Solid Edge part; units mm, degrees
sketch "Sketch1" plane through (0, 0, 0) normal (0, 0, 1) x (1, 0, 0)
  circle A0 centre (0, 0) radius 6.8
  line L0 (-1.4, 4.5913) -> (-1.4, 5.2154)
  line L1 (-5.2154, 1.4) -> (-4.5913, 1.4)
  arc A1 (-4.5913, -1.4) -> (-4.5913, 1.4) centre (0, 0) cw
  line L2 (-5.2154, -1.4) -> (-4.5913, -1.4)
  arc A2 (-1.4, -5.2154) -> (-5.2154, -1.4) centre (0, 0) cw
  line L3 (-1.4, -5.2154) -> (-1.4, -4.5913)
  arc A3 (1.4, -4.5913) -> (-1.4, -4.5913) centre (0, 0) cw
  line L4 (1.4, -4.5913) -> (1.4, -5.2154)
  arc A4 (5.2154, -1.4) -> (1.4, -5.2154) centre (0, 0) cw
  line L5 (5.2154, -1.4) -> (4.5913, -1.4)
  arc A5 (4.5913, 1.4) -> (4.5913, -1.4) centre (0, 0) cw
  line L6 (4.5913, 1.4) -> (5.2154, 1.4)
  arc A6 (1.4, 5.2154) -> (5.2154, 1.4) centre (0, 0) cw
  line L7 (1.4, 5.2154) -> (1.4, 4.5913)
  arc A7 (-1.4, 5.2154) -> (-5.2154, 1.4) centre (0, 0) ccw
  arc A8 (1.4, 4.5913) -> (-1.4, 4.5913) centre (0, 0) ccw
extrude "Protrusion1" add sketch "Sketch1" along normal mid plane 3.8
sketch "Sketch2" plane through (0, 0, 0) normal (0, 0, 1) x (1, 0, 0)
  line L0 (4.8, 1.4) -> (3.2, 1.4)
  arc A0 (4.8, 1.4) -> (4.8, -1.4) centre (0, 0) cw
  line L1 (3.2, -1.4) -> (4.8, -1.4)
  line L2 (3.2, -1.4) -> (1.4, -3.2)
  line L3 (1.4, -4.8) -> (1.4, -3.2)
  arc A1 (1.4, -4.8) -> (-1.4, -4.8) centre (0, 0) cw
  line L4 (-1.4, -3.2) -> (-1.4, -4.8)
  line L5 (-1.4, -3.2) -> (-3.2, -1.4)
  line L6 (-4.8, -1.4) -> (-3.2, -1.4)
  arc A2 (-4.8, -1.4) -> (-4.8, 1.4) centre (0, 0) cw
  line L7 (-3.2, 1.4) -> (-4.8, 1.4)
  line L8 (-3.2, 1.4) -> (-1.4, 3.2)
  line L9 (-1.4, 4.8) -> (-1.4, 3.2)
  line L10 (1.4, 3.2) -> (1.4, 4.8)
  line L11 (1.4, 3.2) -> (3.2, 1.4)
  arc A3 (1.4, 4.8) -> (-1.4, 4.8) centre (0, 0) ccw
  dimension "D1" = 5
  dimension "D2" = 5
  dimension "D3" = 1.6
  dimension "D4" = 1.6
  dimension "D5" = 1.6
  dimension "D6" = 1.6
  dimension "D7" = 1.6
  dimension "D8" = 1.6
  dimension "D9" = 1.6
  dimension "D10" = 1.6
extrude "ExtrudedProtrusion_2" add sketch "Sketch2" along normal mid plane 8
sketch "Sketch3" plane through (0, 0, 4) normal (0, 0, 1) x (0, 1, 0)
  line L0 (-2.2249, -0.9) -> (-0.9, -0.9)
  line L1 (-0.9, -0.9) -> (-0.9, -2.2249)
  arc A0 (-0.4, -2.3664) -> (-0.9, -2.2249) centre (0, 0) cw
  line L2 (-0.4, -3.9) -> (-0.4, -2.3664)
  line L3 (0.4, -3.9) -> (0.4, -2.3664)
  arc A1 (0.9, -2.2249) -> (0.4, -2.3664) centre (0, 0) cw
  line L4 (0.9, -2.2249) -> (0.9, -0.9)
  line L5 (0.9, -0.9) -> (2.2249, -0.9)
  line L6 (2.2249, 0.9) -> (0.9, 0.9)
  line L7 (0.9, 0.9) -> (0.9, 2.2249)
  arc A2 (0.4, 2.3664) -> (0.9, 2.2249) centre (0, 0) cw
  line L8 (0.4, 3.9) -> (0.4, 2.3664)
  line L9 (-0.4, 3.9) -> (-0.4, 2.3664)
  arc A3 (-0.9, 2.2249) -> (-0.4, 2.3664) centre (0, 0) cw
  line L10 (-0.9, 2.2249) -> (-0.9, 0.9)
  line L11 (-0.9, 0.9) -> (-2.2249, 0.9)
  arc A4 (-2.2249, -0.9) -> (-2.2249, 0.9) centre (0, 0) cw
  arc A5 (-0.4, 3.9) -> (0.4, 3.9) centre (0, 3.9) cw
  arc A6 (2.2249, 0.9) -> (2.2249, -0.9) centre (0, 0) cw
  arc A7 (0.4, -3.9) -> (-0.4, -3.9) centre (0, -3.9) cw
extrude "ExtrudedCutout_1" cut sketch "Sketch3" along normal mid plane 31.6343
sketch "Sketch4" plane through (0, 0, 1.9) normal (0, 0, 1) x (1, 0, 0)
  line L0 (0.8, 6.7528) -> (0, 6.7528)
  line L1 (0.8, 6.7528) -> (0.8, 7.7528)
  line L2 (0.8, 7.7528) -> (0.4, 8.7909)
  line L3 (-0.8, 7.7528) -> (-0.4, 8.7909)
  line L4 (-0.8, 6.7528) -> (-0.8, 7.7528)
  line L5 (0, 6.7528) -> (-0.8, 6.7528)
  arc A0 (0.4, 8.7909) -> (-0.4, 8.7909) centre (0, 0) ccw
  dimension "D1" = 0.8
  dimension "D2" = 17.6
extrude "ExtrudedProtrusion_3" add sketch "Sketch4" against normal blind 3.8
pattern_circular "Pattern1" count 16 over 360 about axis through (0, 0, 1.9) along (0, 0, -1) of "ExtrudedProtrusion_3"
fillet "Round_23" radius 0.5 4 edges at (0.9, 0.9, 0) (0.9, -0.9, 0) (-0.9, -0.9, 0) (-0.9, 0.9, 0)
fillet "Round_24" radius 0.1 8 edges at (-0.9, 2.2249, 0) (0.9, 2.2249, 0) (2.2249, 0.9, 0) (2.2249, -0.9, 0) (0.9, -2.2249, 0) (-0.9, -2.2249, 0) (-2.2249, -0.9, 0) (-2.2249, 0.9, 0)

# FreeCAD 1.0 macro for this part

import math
import FreeCAD as App
import Part
import Sketcher

V = App.Vector
Q = App.Units.Quantity


def edges_at(feature, points):
    """Names of the edges that pass closest to the given points."""
    edges = feature.Shape.Edges
    near = lambda p: min(range(len(edges)), key=lambda i: edges[i].distToShape(Part.Vertex(*p))[0])
    return sorted({f"Edge{near(p) + 1}" for p in points})

doc = App.newDocument("Part")
body = doc.addObject("PartDesign::Body", "Body")

# Sketch on XY plane
sketch1 = body.newObject("Sketcher::SketchObject", "Sketch")
sketch1.AttachmentSupport = (doc.getObject("XY_Plane"), [""])
sketch1.MapMode = "FlatFace"
sketch1.addGeometry(Part.Circle(V(0, 0, 0), V(0, 0, 1), 6.8), False)
sketch1.addGeometry(Part.LineSegment(V(-1.4, 5.2, 0), V(-1.4, 4.6, 0)), False)
sketch1.addGeometry(Part.ArcOfCircle(Part.Circle(V(0, 0, 0), V(0, 0, 1), 4.8), math.radians(73), math.radians(107)), False)
sketch1.addGeometry(Part.LineSegment(V(1.4, 4.6, 0), V(1.4, 5.2, 0)), False)
sketch1.addGeometry(Part.ArcOfCircle(Part.Circle(V(0, 0, 0), V(0, 0, 1), 5.4), math.radians(15), math.radians(75)), False)
sketch1.addGeometry(Part.LineSegment(V(5.2, 1.4, 0), V(4.6, 1.4, 0)), False)
sketch1.addGeometry(Part.ArcOfCircle(Part.Circle(V(0, 0, 0), V(0, 0, 1), 4.8), math.radians(-17), math.radians(17)), False)
sketch1.addGeometry(Part.LineSegment(V(4.6, -1.4, 0), V(5.2, -1.4, 0)), False)
sketch1.addGeometry(Part.ArcOfCircle(Part.Circle(V(0, 0, 0), V(0, 0, 1), 5.4), math.radians(-75), math.radians(-15)), False)
sketch1.addGeometry(Part.LineSegment(V(1.4, -5.2, 0), V(1.4, -4.6, 0)), False)
sketch1.addGeometry(Part.ArcOfCircle(Part.Circle(V(0, 0, 0), V(0, 0, 1), 4.8), math.radians(-107), math.radians(-73)), False)
sketch1.addGeometry(Part.LineSegment(V(-1.4, -4.6, 0), V(-1.4, -5.2, 0)), False)
sketch1.addGeometry(Part.ArcOfCircle(Part.Circle(V(0, 0, 0), V(0, 0, 1), 5.4), math.radians(-165), math.radians(-105)), False)
sketch1.addGeometry(Part.LineSegment(V(-5.2, -1.4, 0), V(-4.6, -1.4, 0)), False)
sketch1.addGeometry(Part.ArcOfCircle(Part.Circle(V(0, 0, 0), V(0, 0, 1), 4.8), math.radians(163), math.radians(197)), False)
sketch1.addGeometry(Part.LineSegment(V(-4.6, 1.4, 0), V(-5.2, 1.4, 0)), False)
sketch1.addGeometry(Part.ArcOfCircle(Part.Circle(V(0, 0, 0), V(0, 0, 1), 5.4), math.radians(105), math.radians(165)), False)
sketch1.addConstraint(Sketcher.Constraint("Coincident", 1, 2, 2, 2))
sketch1.addConstraint(Sketcher.Constraint("Coincident", 2, 1, 3, 1))
sketch1.addConstraint(Sketcher.Constraint("Coincident", 3, 2, 4, 2))
sketch1.addConstraint(Sketcher.Constraint("Coincident", 4, 1, 5, 1))
sketch1.addConstraint(Sketcher.Constraint("Coincident", 5, 2, 6, 2))
sketch1.addConstraint(Sketcher.Constraint("Coincident", 6, 1, 7, 1))
sketch1.addConstraint(Sketcher.Constraint("Coincident", 7, 2, 8, 2))
sketch1.addConstraint(Sketcher.Constraint("Coincident", 8, 1, 9, 1))
sketch1.addConstraint(Sketcher.Constraint("Coincident", 9, 2, 10, 2))
sketch1.addConstraint(Sketcher.Constraint("Coincident", 10, 1, 11, 1))
sketch1.addConstraint(Sketcher.Constraint("Coincident", 11, 2, 12, 2))
sketch1.addConstraint(Sketcher.Constraint("Coincident", 12, 1, 13, 1))
sketch1.addConstraint(Sketcher.Constraint("Coincident", 13, 2, 14, 2))
sketch1.addConstraint(Sketcher.Constraint("Coincident", 14, 1, 15, 1))
sketch1.addConstraint(Sketcher.Constraint("Coincident", 15, 2, 16, 2))
sketch1.addConstraint(Sketcher.Constraint("Coincident", 16, 1, 1, 1))
sketch1.addConstraint(Sketcher.Constraint("Vertical", 1))
sketch1.addConstraint(Sketcher.Constraint("Vertical", 3))
sketch1.addConstraint(Sketcher.Constraint("Horizontal", 5))
sketch1.addConstraint(Sketcher.Constraint("Horizontal", 7))
sketch1.addConstraint(Sketcher.Constraint("Vertical", 9))
sketch1.addConstraint(Sketcher.Constraint("Vertical", 11))
sketch1.addConstraint(Sketcher.Constraint("Horizontal", 13))
sketch1.addConstraint(Sketcher.Constraint("Horizontal", 15))
sketch1.addConstraint(Sketcher.Constraint("Coincident", 0, 3, -1, 1))
sketch1.addConstraint(Sketcher.Constraint("Coincident", 2, 3, -1, 1))
sketch1.addConstraint(Sketcher.Constraint("Coincident", 4, 3, -1, 1))
sketch1.addConstraint(Sketcher.Constraint("Coincident", 6, 3, -1, 1))
sketch1.addConstraint(Sketcher.Constraint("Coincident", 8, 3, -1, 1))
sketch1.addConstraint(Sketcher.Constraint("Coincident", 10, 3, -1, 1))
sketch1.addConstraint(Sketcher.Constraint("Coincident", 12, 3, -1, 1))
sketch1.addConstraint(Sketcher.Constraint("Coincident", 14, 3, -1, 1))
sketch1.addConstraint(Sketcher.Constraint("Coincident", 16, 3, -1, 1))
sketch1.addConstraint(Sketcher.Constraint("Equal", 2, 6))
sketch1.addConstraint(Sketcher.Constraint("Equal", 4, 8))
sketch1.addConstraint(Sketcher.Constraint("Equal", 6, 10))
sketch1.addConstraint(Sketcher.Constraint("Equal", 8, 12))
sketch1.addConstraint(Sketcher.Constraint("Equal", 10, 14))
sketch1.addConstraint(Sketcher.Constraint("Equal", 12, 16))
sketch1.addConstraint(Sketcher.Constraint("Horizontal", 1, 2, 2, 1))
sketch1.addConstraint(Sketcher.Constraint("Horizontal", 9, 2, 10, 1))
sketch1.addConstraint(Sketcher.Constraint("Horizontal", 7, 2, 12, 1))
sketch1.addConstraint(Sketcher.Constraint("Horizontal", 5, 2, 14, 1))
sketch1.addConstraint(Sketcher.Constraint("Vertical", 5, 2, 6, 1))
sketch1.addConstraint(Sketcher.Constraint("Vertical", 3, 2, 8, 1))
sketch1.addConstraint(Sketcher.Constraint("Equal", 15, 1))
sketch1.addConstraint(Sketcher.Constraint("Diameter", 0, Q("13.6 mm")))
sketch1.addConstraint(Sketcher.Constraint("Radius", 2, Q("4.8 mm")))
sketch1.addConstraint(Sketcher.Constraint("Radius", 4, Q("5.4 mm")))
sketch1.addConstraint(Sketcher.Constraint("DistanceX", 1, 2, -1, 1, Q("1.4 mm")))
pad1 = body.newObject("PartDesign::Pad", "Pad")
pad1.Profile = sketch1
pad1.Length = 3.8
pad1.Midplane = True

# Sketch on XY plane
sketch2 = body.newObject("Sketcher::SketchObject", "Sketch001")
sketch2.AttachmentSupport = (doc.getObject("XY_Plane"), [""])
sketch2.MapMode = "FlatFace"
sketch2.addGeometry(Part.ArcOfCircle(Part.Circle(V(0, 0, 0), V(0, 0, 1), 5), math.radians(-16), math.radians(16)), False)
sketch2.addGeometry(Part.LineSegment(V(4.8, 1.4, 0), V(3.2, 1.4, 0)), False)
sketch2.addGeometry(Part.LineSegment(V(3.2, 1.4, 0), V(1.4, 3.2, 0)), False)
sketch2.addGeometry(Part.LineSegment(V(1.4, 3.2, 0), V(1.4, 4.8, 0)), False)
sketch2.addGeometry(Part.ArcOfCircle(Part.Circle(V(0, 0, 0), V(0, 0, 1), 5), math.radians(74), math.radians(106)), False)
sketch2.addGeometry(Part.LineSegment(V(-1.4, 4.8, 0), V(-1.4, 3.2, 0)), False)
sketch2.addGeometry(Part.LineSegment(V(-1.4, 3.2, 0), V(-3.2, 1.4, 0)), False)
sketch2.addGeometry(Part.LineSegment(V(-3.2, 1.4, 0), V(-4.8, 1.4, 0)), False)
sketch2.addGeometry(Part.ArcOfCircle(Part.Circle(V(0, 0, 0), V(0, 0, 1), 5), math.radians(164), math.radians(196)), False)
sketch2.addGeometry(Part.LineSegment(V(-4.8, -1.4, 0), V(-3.2, -1.4, 0)), False)
sketch2.addGeometry(Part.LineSegment(V(-3.2, -1.4, 0), V(-1.4, -3.2, 0)), False)
sketch2.addGeometry(Part.LineSegment(V(-1.4, -3.2, 0), V(-1.4, -4.8, 0)), False)
sketch2.addGeometry(Part.ArcOfCircle(Part.Circle(V(0, 0, 0), V(0, 0, 1), 5), math.radians(-106), math.radians(-74)), False)
sketch2.addGeometry(Part.LineSegment(V(1.4, -4.8, 0), V(1.4, -3.2, 0)), False)
sketch2.addGeometry(Part.LineSegment(V(1.4, -3.2, 0), V(3.2, -1.4, 0)), False)
sketch2.addGeometry(Part.LineSegment(V(3.2, -1.4, 0), V(4.8, -1.4, 0)), False)
sketch2.addConstraint(Sketcher.Constraint("Coincident", 0, 2, 1, 1))
sketch2.addConstraint(Sketcher.Constraint("Coincident", 1, 2, 2, 1))
sketch2.addConstraint(Sketcher.Constraint("Coincident", 2, 2, 3, 1))
sketch2.addConstraint(Sketcher.Constraint("Coincident", 3, 2, 4, 1))
sketch2.addConstraint(Sketcher.Constraint("Coincident", 4, 2, 5, 1))
sketch2.addConstraint(Sketcher.Constraint("Coincident", 5, 2, 6, 1))
sketch2.addConstraint(Sketcher.Constraint("Coincident", 6, 2, 7, 1))
sketch2.addConstraint(Sketcher.Constraint("Coincident", 7, 2, 8, 1))
sketch2.addConstraint(Sketcher.Constraint("Coincident", 8, 2, 9, 1))
sketch2.addConstraint(Sketcher.Constraint("Coincident", 9, 2, 10, 1))
sketch2.addConstraint(Sketcher.Constraint("Coincident", 10, 2, 11, 1))
sketch2.addConstraint(Sketcher.Constraint("Coincident", 11, 2, 12, 1))
sketch2.addConstraint(Sketcher.Constraint("Coincident", 12, 2, 13, 1))
sketch2.addConstraint(Sketcher.Constraint("Coincident", 13, 2, 14, 1))
sketch2.addConstraint(Sketcher.Constraint("Coincident", 14, 2, 15, 1))
sketch2.addConstraint(Sketcher.Constraint("Coincident", 15, 2, 0, 1))
sketch2.addConstraint(Sketcher.Constraint("Horizontal", 1))
sketch2.addConstraint(Sketcher.Constraint("Vertical", 3))
sketch2.addConstraint(Sketcher.Constraint("Vertical", 5))
sketch2.addConstraint(Sketcher.Constraint("Horizontal", 7))
sketch2.addConstraint(Sketcher.Constraint("Horizontal", 9))
sketch2.addConstraint(Sketcher.Constraint("Vertical", 11))
sketch2.addConstraint(Sketcher.Constraint("Vertical", 13))
sketch2.addConstraint(Sketcher.Constraint("Horizontal", 15))
sketch2.addConstraint(Sketcher.Constraint("Coincident", 0, 3, -1, 1))
sketch2.addConstraint(Sketcher.Constraint("Coincident", 4, 3, -1, 1))
sketch2.addConstraint(Sketcher.Constraint("Coincident", 8, 3, -1, 1))
sketch2.addConstraint(Sketcher.Constraint("Coincident", 12, 3, -1, 1))
sketch2.addConstraint(Sketcher.Constraint("Equal", 0, 4))
sketch2.addConstraint(Sketcher.Constraint("Equal", 4, 8))
sketch2.addConstraint(Sketcher.Constraint("Equal", 8, 12))
sketch2.addConstraint(Sketcher.Constraint("Symmetric", 1, 2, 9, 2, -1, 1))
sketch2.addConstraint(Sketcher.Constraint("Symmetric", 2, 2, 10, 2, -1, 1))
sketch2.addConstraint(Sketcher.Constraint("Symmetric", 5, 2, 13, 2, -1, 1))
sketch2.addConstraint(Sketcher.Constraint("Symmetric", 6, 2, 14, 2, -1, 1))
sketch2.addConstraint(Sketcher.Constraint("Symmetric", 2, 2, 5, 2, -2))
sketch2.addConstraint(Sketcher.Constraint("Symmetric", 1, 2, 6, 2, -2))
sketch2.addConstraint(Sketcher.Constraint("Perpendicular", 2, 6))
sketch2.addConstraint(Sketcher.Constraint("Equal", 15, 3))
sketch2.addConstraint(Sketcher.Constraint("Radius", 0, Q("5 mm")))
sketch2.addConstraint(Sketcher.Constraint("DistanceX", -1, 1, 0, 2, Q("4.8 mm")))
sketch2.addConstraint(Sketcher.Constraint("DistanceX", -1, 1, 1, 2, Q("3.2 mm")))
pad2 = body.newObject("PartDesign::Pad", "Pad001")
pad2.Profile = sketch2
pad2.Length = 8
pad2.Midplane = True

# Sketch on XY plane
sketch3 = body.newObject("Sketcher::SketchObject", "Sketch002")
sketch3.AttachmentSupport = (doc.getObject("XY_Plane"), [""])
sketch3.MapMode = "FlatFace"
sketch3.AttachmentOffset = App.Placement(V(0, 0, 4), App.Rotation())
sketch3.addGeometry(Part.ArcOfCircle(Part.Circle(V(0, 0, 0), V(0, 0, 1), 2.4), math.radians(-112), math.radians(-68)), False)
sketch3.addGeometry(Part.LineSegment(V(0.9, -2.22, 0), V(0.9, -0.9, 0)), False)
sketch3.addGeometry(Part.LineSegment(V(0.9, -0.9, 0), V(2.22, -0.9, 0)), False)
sketch3.addGeometry(Part.ArcOfCircle(Part.Circle(V(-0.01, 0, 0), V(0, 0, 1), 2.41), math.radians(-22), math.radians(-9.6)), False)
sketch3.addGeometry(Part.LineSegment(V(2.37, -0.4, 0), V(3.9, -0.4, 0)), False)
sketch3.addGeometry(Part.ArcOfCircle(Part.Circle(V(3.9, 0, 0), V(0, 0, 1), 0.4), math.radians(-90), math.radians(90)), False)
sketch3.addGeometry(Part.LineSegment(V(3.9, 0.4, 0), V(2.37, 0.4, 0)), False)
sketch3.addGeometry(Part.ArcOfCircle(Part.Circle(V(0.01, 0, 0), V(0, 0, 1), 2.39), math.radians(9.57), math.radians(22.03)), False)
sketch3.addGeometry(Part.LineSegment(V(2.22, 0.9, 0), V(0.9, 0.9, 0)), False)
sketch3.addGeometry(Part.LineSegment(V(0.9, 0.9, 0), V(0.9, 2.22, 0)), False)
sketch3.addGeometry(Part.ArcOfCircle(Part.Circle(V(0, 0, 0), V(0, 0, 1), 2.4), math.radians(68), math.radians(112)), False)
sketch3.addGeometry(Part.LineSegment(V(-0.9, 2.22, 0), V(-0.9, 0.9, 0)), False)
sketch3.addGeometry(Part.LineSegment(V(-0.9, 0.9, 0), V(-2.22, 0.9, 0)), False)
sketch3.addGeometry(Part.ArcOfCircle(Part.Circle(V(0.01, 0, 0), V(0, 0, 1), 2.41), math.radians(158), math.radians(170.4)), False)
sketch3.addGeometry(Part.LineSegment(V(-2.37, 0.4, 0), V(-3.9, 0.4, 0)), False)
sketch3.addGeometry(Part.ArcOfCircle(Part.Circle(V(-3.9, 0, 0), V(0, 0, 1), 0.4), math.radians(90), math.radians(270)), False)
sketch3.addGeometry(Part.LineSegment(V(-3.9, -0.4, 0), V(-2.37, -0.4, 0)), False)
sketch3.addGeometry(Part.ArcOfCircle(Part.Circle(V(-0.01, 0, 0), V(0, 0, 1), 2.39), math.radians(-170.43), math.radians(-157.97)), False)
sketch3.addGeometry(Part.LineSegment(V(-2.22, -0.9, 0), V(-0.9, -0.9, 0)), False)
sketch3.addGeometry(Part.LineSegment(V(-0.9, -0.9, 0), V(-0.9, -2.22, 0)), False)
sketch3.addConstraint(Sketcher.Constraint("Coincident", 0, 2, 1, 1))
sketch3.addConstraint(Sketcher.Constraint("Coincident", 1, 2, 2, 1))
sketch3.addConstraint(Sketcher.Constraint("Coincident", 2, 2, 3, 1))
sketch3.addConstraint(Sketcher.Constraint("Coincident", 3, 2, 4, 1))
sketch3.addConstraint(Sketcher.Constraint("Tangent", 4, 2, 5, 1))
sketch3.addConstraint(Sketcher.Constraint("Tangent", 5, 2, 6, 1))
sketch3.addConstraint(Sketcher.Constraint("Coincident", 6, 2, 7, 1))
sketch3.addConstraint(Sketcher.Constraint("Coincident", 7, 2, 8, 1))
sketch3.addConstraint(Sketcher.Constraint("Coincident", 8, 2, 9, 1))
sketch3.addConstraint(Sketcher.Constraint("Coincident", 9, 2, 10, 1))
sketch3.addConstraint(Sketcher.Constraint("Coincident", 10, 2, 11, 1))
sketch3.addConstraint(Sketcher.Constraint("Coincident", 11, 2, 12, 1))
sketch3.addConstraint(Sketcher.Constraint("Coincident", 12, 2, 13, 1))
sketch3.addConstraint(Sketcher.Constraint("Coincident", 13, 2, 14, 1))
sketch3.addConstraint(Sketcher.Constraint("Tangent", 14, 2, 15, 1))
sketch3.addConstraint(Sketcher.Constraint("Tangent", 15, 2, 16, 1))
sketch3.addConstraint(Sketcher.Constraint("Coincident", 16, 2, 17, 1))
sketch3.addConstraint(Sketcher.Constraint("Coincident", 17, 2, 18, 1))
sketch3.addConstraint(Sketcher.Constraint("Coincident", 18, 2, 19, 1))
sketch3.addConstraint(Sketcher.Constraint("Coincident", 19, 2, 0, 1))
sketch3.addConstraint(Sketcher.Constraint("Vertical", 1))
sketch3.addConstraint(Sketcher.Constraint("Horizontal", 2))
sketch3.addConstraint(Sketcher.Constraint("Horizontal", 4))
sketch3.addConstraint(Sketcher.Constraint("Horizontal", 6))
sketch3.addConstraint(Sketcher.Constraint("Horizontal", 8))
sketch3.addConstraint(Sketcher.Constraint("Vertical", 9))
sketch3.addConstraint(Sketcher.Constraint("Vertical", 11))
sketch3.addConstraint(Sketcher.Constraint("Horizontal", 12))
sketch3.addConstraint(Sketcher.Constraint("Horizontal", 14))
sketch3.addConstraint(Sketcher.Constraint("Horizontal", 16))
sketch3.addConstraint(Sketcher.Constraint("Horizontal", 18))
sketch3.addConstraint(Sketcher.Constraint("Vertical", 19))
sketch3.addConstraint(Sketcher.Constraint("Coincident", 0, 3, -1, 1))
sketch3.addConstraint(Sketcher.Constraint("Coincident", 10, 3, -1, 1))
sketch3.addConstraint(Sketcher.Constraint("Equal", 0, 10))
sketch3.addConstraint(Sketcher.Constraint("Equal", 3, 13))
sketch3.addConstraint(Sketcher.Constraint("Equal", 5, 15))
sketch3.addConstraint(Sketcher.Constraint("Equal", 7, 17))
sketch3.addConstraint(Sketcher.Constraint("Symmetric", 3, 3, 13, 3, -1, 1))
sketch3.addConstraint(Sketcher.Constraint("Symmetric", 5, 3, 15, 3, -1, 1))
sketch3.addConstraint(Sketcher.Constraint("Symmetric", 7, 3, 17, 3, -1, 1))
sketch3.addConstraint(Sketcher.Constraint("Symmetric", 1, 2, 11, 2, -1, 1))
sketch3.addConstraint(Sketcher.Constraint("Symmetric", 8, 2, 18, 2, -1, 1))
sketch3.addConstraint(Sketcher.Constraint("Symmetric", 8, 2, 11, 2, -2))
sketch3.addConstraint(Sketcher.Constraint("Symmetric", 6, 2, 13, 2, -2))
sketch3.addConstraint(Sketcher.Constraint("Vertical", 2, 2, 7, 2))
sketch3.addConstraint(Sketcher.Constraint("Equal", 18, 1))
sketch3.addConstraint(Sketcher.Constraint("Radius", 0, Q("2.4 mm")))
sketch3.addConstraint(Sketcher.Constraint("Radius", 5, Q("0.4 mm")))
sketch3.addConstraint(Sketcher.Constraint("DistanceX", 1, 2, 4, 2, Q("3 mm")))
sketch3.addConstraint(Sketcher.Constraint("DistanceX", -1, 1, 5, 3, Q("3.9 mm")))
sketch3.addConstraint(Sketcher.Constraint("DistanceY", 1, 2, -1, 1, Q("0.9 mm")))
sketch3.addConstraint(Sketcher.Constraint("Radius", 3, Q("2.4059 mm")))
sketch3.addConstraint(Sketcher.Constraint("Radius", 7, Q("2.3942 mm")))
sketch3.addConstraint(Sketcher.Constraint("DistanceX", 4, 1, 4, 2, Q("1.5336 mm")))
pocket1 = body.newObject("PartDesign::Pocket", "Pocket")
pocket1.Profile = sketch3
pocket1.Length = 31.6343
pocket1.Midplane = True

# Sketch on XY plane
sketch4 = body.newObject("Sketcher::SketchObject", "Sketch003")
sketch4.AttachmentSupport = (doc.getObject("XY_Plane"), [""])
sketch4.MapMode = "FlatFace"
sketch4.AttachmentOffset = App.Placement(V(0, 0, 1.9), App.Rotation())
sketch4.addGeometry(Part.LineSegment(V(-0.8, 6.8, 0), V(0.8, 6.8, 0)), False)
sketch4.addGeometry(Part.LineSegment(V(0.8, 6.8, 0), V(0.8, 7.8, 0)), False)
sketch4.addGeometry(Part.LineSegment(V(0.8, 7.8, 0), V(0.4, 8.8, 0)), False)
sketch4.addGeometry(Part.ArcOfCircle(Part.Circle(V(0, 0, 0), V(0, 0, 1), 8.8), math.radians(87.39), math.radians(92.61)), False)
sketch4.addGeometry(Part.LineSegment(V(-0.4, 8.8, 0), V(-0.8, 7.8, 0)), False)
sketch4.addGeometry(Part.LineSegment(V(-0.8, 7.8, 0), V(-0.8, 6.8, 0)), False)
sketch4.addConstraint(Sketcher.Constraint("Coincident", 0, 2, 1, 1))
sketch4.addConstraint(Sketcher.Constraint("Coincident", 1, 2, 2, 1))
sketch4.addConstraint(Sketcher.Constraint("Coincident", 2, 2, 3, 1))
sketch4.addConstraint(Sketcher.Constraint("Coincident", 3, 2, 4, 1))
sketch4.addConstraint(Sketcher.Constraint("Coincident", 4, 2, 5, 1))
sketch4.addConstraint(Sketcher.Constraint("Coincident", 5, 2, 0, 1))
sketch4.addConstraint(Sketcher.Constraint("Horizontal", 0))
sketch4.addConstraint(Sketcher.Constraint("Vertical", 1))
sketch4.addConstraint(Sketcher.Constraint("Vertical", 5))
sketch4.addConstraint(Sketcher.Constraint("Coincident", 3, 3, -1, 1))
sketch4.addConstraint(Sketcher.Constraint("Symmetric", 1, 2, 4, 2, -2))
sketch4.addConstraint(Sketcher.Constraint("Horizontal", 2, 2, 3, 2))
sketch4.addConstraint(Sketcher.Constraint("DistanceX", -1, 1, 0, 2, Q("0.8 mm")))
sketch4.addConstraint(Sketcher.Constraint("Radius", 3, Q("8.8 mm")))
sketch4.addConstraint(Sketcher.Constraint("DistanceX", 3, 2, 2, 2, Q("0.8 mm")))
sketch4.addConstraint(Sketcher.Constraint("DistanceY", 1, 1, 1, 2, Q("1 mm")))
sketch4.addConstraint(Sketcher.Constraint("DistanceY", 1, 2, 2, 2, Q("1.038 mm")))
pad3 = body.newObject("PartDesign::Pad", "Pad002")
pad3.Profile = sketch4
pad3.Length = 3.8
pad3.Reversed = True
doc.recompute()

polarpattern = body.newObject("PartDesign::PolarPattern", "PolarPattern")
polarpattern.Originals = [pad3]
polarpattern.Axis = (doc.getObject("Z_Axis"), [""])
polarpattern.Angle = 360
polarpattern.Occurrences = 16
body.Tip = polarpattern
doc.recompute()

fillet = body.newObject("PartDesign::Fillet", "Fillet")
fillet.Base = (polarpattern, edges_at(polarpattern, [
    (0.9, 0.9, 0),
    (0.9, -0.9, 0),
    (-0.9, -0.9, 0),
    (-0.9, 0.9, 0),
]))
fillet.Radius = 0.5
doc.recompute()

fillet2 = body.newObject("PartDesign::Fillet", "Fillet001")
fillet2.Base = (fillet, edges_at(fillet, [
    (-0.9, 2.225, 0),
    (0.9, 2.225, 0),
    (2.225, 0.9, 0),
    (2.225, -0.9, 0),
    (0.9, -2.225, 0),
    (-0.9, -2.225, 0),
    (-2.225, -0.9, 0),
    (-2.225, 0.9, 0),
]))
fillet2.Radius = 0.1

doc.recompute()
